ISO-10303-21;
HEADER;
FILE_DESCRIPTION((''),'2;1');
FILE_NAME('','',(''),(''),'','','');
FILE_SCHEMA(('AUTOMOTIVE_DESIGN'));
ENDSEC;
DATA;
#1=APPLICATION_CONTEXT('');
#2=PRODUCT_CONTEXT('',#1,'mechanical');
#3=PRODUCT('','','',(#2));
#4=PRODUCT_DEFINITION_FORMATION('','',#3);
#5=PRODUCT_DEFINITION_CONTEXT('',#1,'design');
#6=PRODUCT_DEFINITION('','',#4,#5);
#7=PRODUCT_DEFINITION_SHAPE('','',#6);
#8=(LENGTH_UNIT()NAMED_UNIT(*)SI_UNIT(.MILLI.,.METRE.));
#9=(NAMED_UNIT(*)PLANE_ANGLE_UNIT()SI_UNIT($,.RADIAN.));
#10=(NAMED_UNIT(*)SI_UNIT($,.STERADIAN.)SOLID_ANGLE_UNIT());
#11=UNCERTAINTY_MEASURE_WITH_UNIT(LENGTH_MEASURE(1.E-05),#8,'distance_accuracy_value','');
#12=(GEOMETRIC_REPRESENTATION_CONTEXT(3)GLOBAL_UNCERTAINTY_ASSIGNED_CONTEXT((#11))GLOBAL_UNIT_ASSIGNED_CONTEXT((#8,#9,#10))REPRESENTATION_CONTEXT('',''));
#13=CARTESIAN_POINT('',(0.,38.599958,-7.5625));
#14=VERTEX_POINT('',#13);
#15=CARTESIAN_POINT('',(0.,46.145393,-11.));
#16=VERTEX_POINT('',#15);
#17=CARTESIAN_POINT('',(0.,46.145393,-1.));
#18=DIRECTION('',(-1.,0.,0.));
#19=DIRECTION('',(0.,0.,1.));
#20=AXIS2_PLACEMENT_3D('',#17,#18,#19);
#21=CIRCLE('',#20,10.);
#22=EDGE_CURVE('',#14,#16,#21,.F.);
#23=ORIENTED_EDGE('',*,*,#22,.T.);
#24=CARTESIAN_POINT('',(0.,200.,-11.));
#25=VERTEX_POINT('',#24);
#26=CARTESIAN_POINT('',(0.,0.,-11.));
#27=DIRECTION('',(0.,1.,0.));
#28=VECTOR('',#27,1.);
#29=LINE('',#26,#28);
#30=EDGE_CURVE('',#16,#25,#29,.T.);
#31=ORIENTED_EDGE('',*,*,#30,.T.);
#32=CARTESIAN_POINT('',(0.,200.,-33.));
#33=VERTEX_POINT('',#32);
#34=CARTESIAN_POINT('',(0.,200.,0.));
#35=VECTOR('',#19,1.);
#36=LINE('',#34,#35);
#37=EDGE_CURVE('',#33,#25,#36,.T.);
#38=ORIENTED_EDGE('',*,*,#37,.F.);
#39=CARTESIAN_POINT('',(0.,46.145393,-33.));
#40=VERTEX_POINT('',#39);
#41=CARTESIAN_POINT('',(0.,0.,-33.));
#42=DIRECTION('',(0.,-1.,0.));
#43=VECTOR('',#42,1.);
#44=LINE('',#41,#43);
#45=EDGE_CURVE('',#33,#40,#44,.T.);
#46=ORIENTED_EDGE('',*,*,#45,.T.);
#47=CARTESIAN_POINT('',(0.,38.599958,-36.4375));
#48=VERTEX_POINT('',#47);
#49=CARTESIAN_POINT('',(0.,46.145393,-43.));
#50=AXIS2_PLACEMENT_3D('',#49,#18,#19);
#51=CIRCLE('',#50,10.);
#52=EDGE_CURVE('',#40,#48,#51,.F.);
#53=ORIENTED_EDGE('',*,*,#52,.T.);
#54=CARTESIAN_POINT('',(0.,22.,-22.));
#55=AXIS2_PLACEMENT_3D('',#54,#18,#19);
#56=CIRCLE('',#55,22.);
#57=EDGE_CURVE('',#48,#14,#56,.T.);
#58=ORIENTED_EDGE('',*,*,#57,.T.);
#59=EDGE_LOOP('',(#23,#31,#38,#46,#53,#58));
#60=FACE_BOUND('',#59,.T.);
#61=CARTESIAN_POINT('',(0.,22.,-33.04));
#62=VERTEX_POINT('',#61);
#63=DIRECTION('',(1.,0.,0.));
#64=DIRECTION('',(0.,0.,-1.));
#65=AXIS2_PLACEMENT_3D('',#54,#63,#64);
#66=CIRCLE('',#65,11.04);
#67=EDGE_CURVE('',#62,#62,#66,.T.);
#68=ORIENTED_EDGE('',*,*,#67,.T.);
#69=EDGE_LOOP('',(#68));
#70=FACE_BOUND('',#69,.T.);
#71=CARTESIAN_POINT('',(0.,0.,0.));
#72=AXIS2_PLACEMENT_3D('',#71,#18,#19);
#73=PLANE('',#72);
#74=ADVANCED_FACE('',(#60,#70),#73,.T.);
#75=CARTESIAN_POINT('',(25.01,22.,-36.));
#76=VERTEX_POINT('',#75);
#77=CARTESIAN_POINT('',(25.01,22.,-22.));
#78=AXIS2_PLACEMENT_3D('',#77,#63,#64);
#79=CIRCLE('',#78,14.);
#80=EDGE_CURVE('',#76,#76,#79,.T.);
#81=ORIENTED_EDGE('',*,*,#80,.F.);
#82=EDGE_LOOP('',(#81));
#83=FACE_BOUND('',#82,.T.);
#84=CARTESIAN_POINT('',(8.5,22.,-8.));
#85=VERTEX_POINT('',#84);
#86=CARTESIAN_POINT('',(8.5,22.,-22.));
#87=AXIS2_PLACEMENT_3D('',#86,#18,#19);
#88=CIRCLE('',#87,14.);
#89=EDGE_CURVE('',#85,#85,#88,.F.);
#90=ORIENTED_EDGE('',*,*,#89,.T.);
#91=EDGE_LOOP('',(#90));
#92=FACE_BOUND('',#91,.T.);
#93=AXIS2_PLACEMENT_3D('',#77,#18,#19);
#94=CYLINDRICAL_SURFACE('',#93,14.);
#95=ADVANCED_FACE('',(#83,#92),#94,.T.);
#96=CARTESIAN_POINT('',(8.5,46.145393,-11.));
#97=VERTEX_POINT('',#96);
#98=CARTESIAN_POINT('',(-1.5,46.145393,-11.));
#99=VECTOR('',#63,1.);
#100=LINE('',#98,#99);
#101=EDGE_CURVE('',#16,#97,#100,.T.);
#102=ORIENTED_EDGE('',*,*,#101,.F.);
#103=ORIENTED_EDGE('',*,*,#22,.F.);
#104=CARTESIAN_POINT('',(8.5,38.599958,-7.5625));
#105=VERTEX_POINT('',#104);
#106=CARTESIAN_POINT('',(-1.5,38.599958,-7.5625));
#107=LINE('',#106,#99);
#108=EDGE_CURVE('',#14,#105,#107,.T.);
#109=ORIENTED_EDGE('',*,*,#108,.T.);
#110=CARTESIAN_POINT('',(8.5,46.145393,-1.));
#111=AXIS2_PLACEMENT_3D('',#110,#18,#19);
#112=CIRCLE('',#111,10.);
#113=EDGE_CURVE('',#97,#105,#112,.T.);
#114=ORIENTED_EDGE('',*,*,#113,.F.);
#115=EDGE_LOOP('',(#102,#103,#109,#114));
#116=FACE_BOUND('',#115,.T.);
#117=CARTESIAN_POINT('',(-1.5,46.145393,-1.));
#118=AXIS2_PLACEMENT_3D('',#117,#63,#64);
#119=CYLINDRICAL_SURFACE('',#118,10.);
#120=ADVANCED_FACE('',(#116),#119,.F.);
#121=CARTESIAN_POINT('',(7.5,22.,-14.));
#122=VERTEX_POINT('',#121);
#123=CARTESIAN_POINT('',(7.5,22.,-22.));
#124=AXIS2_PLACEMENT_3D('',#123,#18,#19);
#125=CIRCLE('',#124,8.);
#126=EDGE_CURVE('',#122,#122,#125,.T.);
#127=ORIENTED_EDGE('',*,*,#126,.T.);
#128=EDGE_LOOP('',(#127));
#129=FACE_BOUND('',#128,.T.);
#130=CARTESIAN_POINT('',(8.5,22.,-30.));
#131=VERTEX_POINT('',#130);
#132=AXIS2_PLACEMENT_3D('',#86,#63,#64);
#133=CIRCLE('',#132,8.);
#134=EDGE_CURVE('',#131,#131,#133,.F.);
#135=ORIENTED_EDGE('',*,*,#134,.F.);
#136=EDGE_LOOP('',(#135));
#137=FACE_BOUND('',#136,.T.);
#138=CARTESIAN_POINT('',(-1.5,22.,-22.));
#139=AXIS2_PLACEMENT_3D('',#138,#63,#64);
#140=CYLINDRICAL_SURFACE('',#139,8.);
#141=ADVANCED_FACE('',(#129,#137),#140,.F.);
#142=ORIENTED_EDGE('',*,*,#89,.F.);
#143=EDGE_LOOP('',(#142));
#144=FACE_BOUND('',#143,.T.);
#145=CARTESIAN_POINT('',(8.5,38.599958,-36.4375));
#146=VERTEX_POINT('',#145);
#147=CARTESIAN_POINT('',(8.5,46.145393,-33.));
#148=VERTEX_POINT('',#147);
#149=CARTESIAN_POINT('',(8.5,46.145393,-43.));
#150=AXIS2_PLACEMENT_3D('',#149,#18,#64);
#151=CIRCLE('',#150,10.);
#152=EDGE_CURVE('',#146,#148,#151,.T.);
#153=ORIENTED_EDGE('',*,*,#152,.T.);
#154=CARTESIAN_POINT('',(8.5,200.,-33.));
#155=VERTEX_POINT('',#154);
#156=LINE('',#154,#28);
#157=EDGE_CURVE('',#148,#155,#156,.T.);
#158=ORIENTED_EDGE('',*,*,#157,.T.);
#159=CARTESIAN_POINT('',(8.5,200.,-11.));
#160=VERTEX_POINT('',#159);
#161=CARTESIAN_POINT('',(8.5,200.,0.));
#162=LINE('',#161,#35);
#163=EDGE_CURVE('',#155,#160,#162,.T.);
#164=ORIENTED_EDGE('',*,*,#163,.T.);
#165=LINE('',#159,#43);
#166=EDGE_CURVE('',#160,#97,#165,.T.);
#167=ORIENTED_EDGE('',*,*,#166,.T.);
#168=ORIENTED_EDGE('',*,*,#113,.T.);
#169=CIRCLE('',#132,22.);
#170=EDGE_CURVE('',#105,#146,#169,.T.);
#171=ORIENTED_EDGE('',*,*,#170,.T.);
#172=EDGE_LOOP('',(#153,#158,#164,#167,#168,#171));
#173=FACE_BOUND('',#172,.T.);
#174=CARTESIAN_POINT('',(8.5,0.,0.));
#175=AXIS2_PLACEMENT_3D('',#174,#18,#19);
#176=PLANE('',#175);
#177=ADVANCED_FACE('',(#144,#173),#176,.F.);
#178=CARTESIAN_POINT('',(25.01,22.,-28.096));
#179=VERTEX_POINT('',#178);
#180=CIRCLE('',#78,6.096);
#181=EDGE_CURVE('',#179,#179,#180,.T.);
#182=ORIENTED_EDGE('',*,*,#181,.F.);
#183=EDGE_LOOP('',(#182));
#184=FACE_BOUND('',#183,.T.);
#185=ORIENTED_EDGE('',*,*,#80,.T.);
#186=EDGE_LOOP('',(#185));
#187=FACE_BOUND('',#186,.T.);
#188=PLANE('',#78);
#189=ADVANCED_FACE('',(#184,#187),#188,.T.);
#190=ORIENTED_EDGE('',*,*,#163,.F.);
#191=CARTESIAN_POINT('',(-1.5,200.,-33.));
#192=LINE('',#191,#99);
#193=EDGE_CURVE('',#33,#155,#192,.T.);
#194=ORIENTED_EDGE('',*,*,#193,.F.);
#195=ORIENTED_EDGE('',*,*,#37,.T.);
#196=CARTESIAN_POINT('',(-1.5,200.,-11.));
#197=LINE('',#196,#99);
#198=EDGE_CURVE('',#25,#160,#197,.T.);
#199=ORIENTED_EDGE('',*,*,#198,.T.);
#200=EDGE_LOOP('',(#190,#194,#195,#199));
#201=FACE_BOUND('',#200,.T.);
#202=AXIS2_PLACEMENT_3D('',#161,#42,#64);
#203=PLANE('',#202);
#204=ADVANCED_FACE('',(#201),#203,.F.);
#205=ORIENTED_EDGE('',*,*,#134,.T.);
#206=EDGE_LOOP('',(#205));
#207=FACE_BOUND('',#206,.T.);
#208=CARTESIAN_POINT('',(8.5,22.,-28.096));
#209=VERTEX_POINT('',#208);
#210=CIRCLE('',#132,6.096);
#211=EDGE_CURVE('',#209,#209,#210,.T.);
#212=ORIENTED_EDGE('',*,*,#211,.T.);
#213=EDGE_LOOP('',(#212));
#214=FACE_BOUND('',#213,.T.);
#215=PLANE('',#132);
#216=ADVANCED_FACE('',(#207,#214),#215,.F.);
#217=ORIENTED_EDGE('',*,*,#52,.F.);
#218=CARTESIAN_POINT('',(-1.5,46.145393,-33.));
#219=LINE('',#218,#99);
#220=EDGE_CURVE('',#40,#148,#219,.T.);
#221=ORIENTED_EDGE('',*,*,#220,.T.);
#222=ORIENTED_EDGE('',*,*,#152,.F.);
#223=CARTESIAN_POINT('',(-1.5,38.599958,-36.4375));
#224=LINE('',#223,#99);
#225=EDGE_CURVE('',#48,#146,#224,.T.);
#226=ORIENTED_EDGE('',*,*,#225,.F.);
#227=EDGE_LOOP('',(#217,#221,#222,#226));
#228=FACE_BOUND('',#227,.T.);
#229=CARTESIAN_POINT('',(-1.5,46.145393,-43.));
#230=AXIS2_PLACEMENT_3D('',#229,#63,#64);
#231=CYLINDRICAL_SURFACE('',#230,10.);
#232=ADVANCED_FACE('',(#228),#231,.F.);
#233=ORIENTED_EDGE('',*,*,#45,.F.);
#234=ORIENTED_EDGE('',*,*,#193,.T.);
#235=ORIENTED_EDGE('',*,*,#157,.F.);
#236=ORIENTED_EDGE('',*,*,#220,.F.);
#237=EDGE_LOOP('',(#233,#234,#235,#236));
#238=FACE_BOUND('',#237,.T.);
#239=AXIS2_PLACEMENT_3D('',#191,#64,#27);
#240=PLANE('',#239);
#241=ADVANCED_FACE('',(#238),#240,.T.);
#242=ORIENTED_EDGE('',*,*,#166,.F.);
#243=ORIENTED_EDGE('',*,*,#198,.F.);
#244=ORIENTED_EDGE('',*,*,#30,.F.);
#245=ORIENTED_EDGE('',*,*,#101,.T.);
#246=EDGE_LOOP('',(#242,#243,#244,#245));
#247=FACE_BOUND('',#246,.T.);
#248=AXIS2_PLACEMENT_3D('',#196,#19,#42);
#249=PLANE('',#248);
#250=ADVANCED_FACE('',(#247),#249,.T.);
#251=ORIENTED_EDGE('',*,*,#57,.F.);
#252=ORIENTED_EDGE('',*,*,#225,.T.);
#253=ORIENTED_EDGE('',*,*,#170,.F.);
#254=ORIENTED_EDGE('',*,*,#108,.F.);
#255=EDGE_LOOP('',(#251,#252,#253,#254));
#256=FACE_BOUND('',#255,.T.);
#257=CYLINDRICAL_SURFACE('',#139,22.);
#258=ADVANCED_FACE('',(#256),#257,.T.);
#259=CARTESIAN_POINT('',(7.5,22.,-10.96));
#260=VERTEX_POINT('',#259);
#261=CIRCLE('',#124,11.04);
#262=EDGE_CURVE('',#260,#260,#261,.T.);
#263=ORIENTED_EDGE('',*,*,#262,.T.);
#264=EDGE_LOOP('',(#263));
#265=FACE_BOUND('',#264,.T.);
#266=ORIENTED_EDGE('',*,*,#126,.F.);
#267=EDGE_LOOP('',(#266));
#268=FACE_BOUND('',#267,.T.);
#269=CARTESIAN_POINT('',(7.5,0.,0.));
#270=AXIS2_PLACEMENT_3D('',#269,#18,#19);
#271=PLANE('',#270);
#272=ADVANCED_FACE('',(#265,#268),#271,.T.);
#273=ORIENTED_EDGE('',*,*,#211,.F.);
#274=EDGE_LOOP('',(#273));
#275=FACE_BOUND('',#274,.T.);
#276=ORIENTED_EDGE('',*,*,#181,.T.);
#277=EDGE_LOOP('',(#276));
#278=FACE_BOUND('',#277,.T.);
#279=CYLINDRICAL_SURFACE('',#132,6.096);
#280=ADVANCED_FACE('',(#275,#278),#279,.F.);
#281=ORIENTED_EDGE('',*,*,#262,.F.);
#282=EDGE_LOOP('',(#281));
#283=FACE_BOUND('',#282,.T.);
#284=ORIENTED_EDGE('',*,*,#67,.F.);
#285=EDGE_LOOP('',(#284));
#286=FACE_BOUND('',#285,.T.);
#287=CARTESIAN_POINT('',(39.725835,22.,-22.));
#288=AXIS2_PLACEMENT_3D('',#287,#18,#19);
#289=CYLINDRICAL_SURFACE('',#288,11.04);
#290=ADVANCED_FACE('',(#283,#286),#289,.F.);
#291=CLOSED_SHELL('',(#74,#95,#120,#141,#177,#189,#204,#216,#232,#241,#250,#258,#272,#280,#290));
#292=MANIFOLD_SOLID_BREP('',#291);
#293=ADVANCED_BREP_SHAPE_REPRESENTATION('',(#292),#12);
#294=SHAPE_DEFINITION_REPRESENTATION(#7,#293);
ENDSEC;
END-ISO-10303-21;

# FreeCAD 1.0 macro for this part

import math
import FreeCAD as App
import Part
import Sketcher
Q = App.Units.Quantity

doc = App.newDocument("Part")
body = doc.addObject("PartDesign::Body", "Body")

# Sketch on YZ plane
sketch1 = body.newObject("Sketcher::SketchObject", "Sketch")
sketch1.AttachmentSupport = (doc.getObject("YZ_Plane"), [""])
sketch1.MapMode = "FlatFace"
sketch1.addGeometry(Part.LineSegment(App.Vector(200, 0, 0), App.Vector(0, 0, 0)), False)
sketch1.addGeometry(Part.LineSegment(App.Vector(0, 0, 0), App.Vector(0, -44, 0)), False)
sketch1.addGeometry(Part.LineSegment(App.Vector(0, -44, 0), App.Vector(200, -44, 0)), False)
sketch1.addGeometry(Part.LineSegment(App.Vector(200, -44, 0), App.Vector(200, 0, 0)), False)
sketch1.addConstraint(Sketcher.Constraint("Coincident", 0, 2, 1, 1))
sketch1.addConstraint(Sketcher.Constraint("Coincident", 1, 2, 2, 1))
sketch1.addConstraint(Sketcher.Constraint("Coincident", 2, 2, 3, 1))
sketch1.addConstraint(Sketcher.Constraint("Coincident", 3, 2, 0, 1))
sketch1.addConstraint(Sketcher.Constraint("Horizontal", 0))
sketch1.addConstraint(Sketcher.Constraint("Vertical", 1))
sketch1.addConstraint(Sketcher.Constraint("Horizontal", 2))
sketch1.addConstraint(Sketcher.Constraint("Vertical", 3))
sketch1.addConstraint(Sketcher.Constraint("Coincident", 0, 2, -1, 1))
sketch1.addConstraint(Sketcher.Constraint("DistanceX", 0, 2, 0, 1, Q("200 mm")))
sketch1.addConstraint(Sketcher.Constraint("DistanceY", 1, 2, 1, 1, Q("44 mm")))
pad1 = body.newObject("PartDesign::Pad", "Pad")
pad1.Profile = sketch1
pad1.Length = 8.5

# Sketch on YZ plane
sketch2 = body.newObject("Sketcher::SketchObject", "Sketch001")
sketch2.AttachmentSupport = (doc.getObject("YZ_Plane"), [""])
sketch2.MapMode = "FlatFace"
sketch2.addGeometry(Part.Circle(App.Vector(22, -22, 0), App.Vector(0, 0, 1), 11), False)
sketch2.addConstraint(Sketcher.Constraint("Diameter", 0, Q("22.08 mm")))
sketch2.addConstraint(Sketcher.Constraint("DistanceX", -1, 1, 0, 3, Q("22 mm")))
sketch2.addConstraint(Sketcher.Constraint("DistanceY", 0, 3, -1, 1, Q("22 mm")))
pocket1 = body.newObject("PartDesign::Pocket", "Pocket")
pocket1.Profile = sketch2
pocket1.Length = 7.5
pocket1.Reversed = True

# Sketch on YZ plane
sketch3 = body.newObject("Sketcher::SketchObject", "Sketch002")
sketch3.AttachmentSupport = (doc.getObject("YZ_Plane"), [""])
sketch3.MapMode = "FlatFace"
sketch3.AttachmentOffset = App.Placement(App.Vector(0, 0, 8.5), App.Rotation())
sketch3.addGeometry(Part.LineSegment(App.Vector(221, 21, 0), App.Vector(-21, 21, 0)), False)
sketch3.addGeometry(Part.LineSegment(App.Vector(-21, 21, 0), App.Vector(-21, -65, 0)), False)
sketch3.addGeometry(Part.LineSegment(App.Vector(-21, -65, 0), App.Vector(221, -65, 0)), False)
sketch3.addGeometry(Part.LineSegment(App.Vector(221, -65, 0), App.Vector(221, 21, 0)), False)
sketch3.addGeometry(Part.LineSegment(App.Vector(46, -11, 0), App.Vector(200, -11, 0)), False)
sketch3.addGeometry(Part.LineSegment(App.Vector(200, -11, 0), App.Vector(200, -33, 0)), False)
sketch3.addGeometry(Part.LineSegment(App.Vector(200, -33, 0), App.Vector(46, -33, 0)), False)
sketch3.addGeometry(Part.ArcOfCircle(Part.Circle(App.Vector(46, -43, 0), App.Vector(0, 0, 1), 10), math.radians(90), math.radians(139)), False)
sketch3.addGeometry(Part.ArcOfCircle(Part.Circle(App.Vector(22, -22, 0), App.Vector(0, 0, 1), 22), math.radians(41), math.radians(319)), False)
sketch3.addGeometry(Part.ArcOfCircle(Part.Circle(App.Vector(46, -1, 0), App.Vector(0, 0, 1), 10), math.radians(-139), math.radians(-90)), False)
sketch3.addGeometry(Part.Circle(App.Vector(22, -22, 0), App.Vector(0, 0, 1), 8), False)
sketch3.addConstraint(Sketcher.Constraint("Coincident", 0, 2, 1, 1))
sketch3.addConstraint(Sketcher.Constraint("Coincident", 1, 2, 2, 1))
sketch3.addConstraint(Sketcher.Constraint("Coincident", 2, 2, 3, 1))
sketch3.addConstraint(Sketcher.Constraint("Coincident", 3, 2, 0, 1))
sketch3.addConstraint(Sketcher.Constraint("Coincident", 4, 2, 5, 1))
sketch3.addConstraint(Sketcher.Constraint("Coincident", 5, 2, 6, 1))
sketch3.addConstraint(Sketcher.Constraint("Tangent", 6, 2, 7, 1))
sketch3.addConstraint(Sketcher.Constraint("Tangent", 7, 2, 8, 2))
sketch3.addConstraint(Sketcher.Constraint("Tangent", 8, 1, 9, 1))
sketch3.addConstraint(Sketcher.Constraint("Tangent", 9, 2, 4, 1))
sketch3.addConstraint(Sketcher.Constraint("Horizontal", 0))
sketch3.addConstraint(Sketcher.Constraint("Vertical", 1))
sketch3.addConstraint(Sketcher.Constraint("Horizontal", 2))
sketch3.addConstraint(Sketcher.Constraint("Vertical", 3))
sketch3.addConstraint(Sketcher.Constraint("Horizontal", 4))
sketch3.addConstraint(Sketcher.Constraint("Vertical", 5))
sketch3.addConstraint(Sketcher.Constraint("Horizontal", 6))
sketch3.addConstraint(Sketcher.Constraint("Coincident", 10, 3, 8, 3))
sketch3.addConstraint(Sketcher.Constraint("Equal", 7, 9))
sketch3.addConstraint(Sketcher.Constraint("Vertical", 7, 3, 9, 3))
sketch3.addConstraint(Sketcher.Constraint("Diameter", 10, Q("16 mm")))
sketch3.addConstraint(Sketcher.Constraint("Radius", 7, Q("10 mm")))
sketch3.addConstraint(Sketcher.Constraint("Radius", 8, Q("22 mm")))
sketch3.addConstraint(Sketcher.Constraint("DistanceY", 5, 2, 5, 1, Q("22 mm")))
sketch3.addConstraint(Sketcher.Constraint("DistanceY", 7, 3, -1, 1, Q("43 mm")))
sketch3.addConstraint(Sketcher.Constraint("DistanceX", -1, 1, 8, 3, Q("22 mm")))
sketch3.addConstraint(Sketcher.Constraint("DistanceX", -1, 1, 4, 2, Q("200 mm")))
sketch3.addConstraint(Sketcher.Constraint("DistanceX", 0, 2, 0, 1, Q("242.992 mm")))
sketch3.addConstraint(Sketcher.Constraint("DistanceY", 1, 2, 1, 1, Q("86.992 mm")))
sketch3.addConstraint(Sketcher.Constraint("DistanceX", 0, 2, -1, 1, Q("21.496 mm")))
sketch3.addConstraint(Sketcher.Constraint("DistanceY", -1, 1, 0, 2, Q("21.496 mm")))
pocket2 = body.newObject("PartDesign::Pocket", "Pocket001")
pocket2.Profile = sketch3
pocket2.Length = 10

# Sketch on YZ plane
sketch4 = body.newObject("Sketcher::SketchObject", "Sketch003")
sketch4.AttachmentSupport = (doc.getObject("YZ_Plane"), [""])
sketch4.MapMode = "FlatFace"
sketch4.AttachmentOffset = App.Placement(App.Vector(0, 0, 8.5), App.Rotation())
sketch4.addGeometry(Part.Circle(App.Vector(22, -22, 0), App.Vector(0, 0, 1), 14), False)
sketch4.addConstraint(Sketcher.Constraint("Diameter", 0, Q("28 mm")))
sketch4.addConstraint(Sketcher.Constraint("DistanceX", -1, 1, 0, 3, Q("22 mm")))
sketch4.addConstraint(Sketcher.Constraint("DistanceY", 0, 3, -1, 1, Q("22 mm")))
pad2 = body.newObject("PartDesign::Pad", "Pad001")
pad2.Profile = sketch4
pad2.Length = 16.51

# Sketch on YZ plane
sketch5 = body.newObject("Sketcher::SketchObject", "Sketch004")
sketch5.AttachmentSupport = (doc.getObject("YZ_Plane"), [""])
sketch5.MapMode = "FlatFace"
sketch5.AttachmentOffset = App.Placement(App.Vector(0, 0, 25.01), App.Rotation())
sketch5.addGeometry(Part.Circle(App.Vector(22, -22, 0), App.Vector(0, 0, 1), 6), False)
sketch5.addConstraint(Sketcher.Constraint("Diameter", 0, Q("12.192 mm")))
sketch5.addConstraint(Sketcher.Constraint("DistanceX", -1, 1, 0, 3, Q("22 mm")))
sketch5.addConstraint(Sketcher.Constraint("DistanceY", 0, 3, -1, 1, Q("22 mm")))
pocket3 = body.newObject("PartDesign::Pocket", "Pocket002")
pocket3.Profile = sketch5
pocket3.Length = 16.51

doc.recompute()
